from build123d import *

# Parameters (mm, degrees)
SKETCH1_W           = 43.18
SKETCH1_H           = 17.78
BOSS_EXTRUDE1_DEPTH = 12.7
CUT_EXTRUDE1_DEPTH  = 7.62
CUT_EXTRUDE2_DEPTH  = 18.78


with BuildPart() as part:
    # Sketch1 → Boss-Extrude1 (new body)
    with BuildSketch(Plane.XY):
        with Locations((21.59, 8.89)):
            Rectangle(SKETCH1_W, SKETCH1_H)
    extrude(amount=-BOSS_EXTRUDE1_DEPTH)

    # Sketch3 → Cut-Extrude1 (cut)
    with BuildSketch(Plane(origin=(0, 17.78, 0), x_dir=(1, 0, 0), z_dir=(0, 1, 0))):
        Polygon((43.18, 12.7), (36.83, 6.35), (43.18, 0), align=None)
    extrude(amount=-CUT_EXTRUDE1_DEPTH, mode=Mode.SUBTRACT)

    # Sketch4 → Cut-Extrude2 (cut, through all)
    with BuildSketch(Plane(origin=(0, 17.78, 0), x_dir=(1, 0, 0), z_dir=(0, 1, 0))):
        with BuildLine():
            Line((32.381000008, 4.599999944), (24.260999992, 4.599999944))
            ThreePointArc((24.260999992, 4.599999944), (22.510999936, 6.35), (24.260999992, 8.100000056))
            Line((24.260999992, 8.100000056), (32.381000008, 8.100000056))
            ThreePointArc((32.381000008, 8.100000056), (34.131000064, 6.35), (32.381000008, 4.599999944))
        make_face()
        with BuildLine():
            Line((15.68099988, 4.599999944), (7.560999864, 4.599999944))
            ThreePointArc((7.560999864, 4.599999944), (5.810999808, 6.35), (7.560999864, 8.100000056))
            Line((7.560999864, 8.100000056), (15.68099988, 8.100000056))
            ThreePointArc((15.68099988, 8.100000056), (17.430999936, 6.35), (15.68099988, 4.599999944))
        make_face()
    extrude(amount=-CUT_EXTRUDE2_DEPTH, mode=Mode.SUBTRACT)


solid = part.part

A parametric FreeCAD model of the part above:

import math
import FreeCAD as App
import Part
import Sketcher

V = App.Vector
Q = App.Units.Quantity

doc = App.newDocument("Part")
body = doc.addObject("PartDesign::Body", "Body")

sketch1 = doc.addObject("Sketcher::SketchObject", "Sketch")
body.addObject(sketch1)
sketch1.AttachmentSupport = (doc.XY_Plane, [""])
sketch1.MapMode = "FlatFace"
sketch1.addGeometry([
    Part.LineSegment(V(0, 17.78, 0), V(0, 0, 0)),
    Part.LineSegment(V(0, 0, 0), V(43.18, 0, 0)),
    Part.LineSegment(V(43.18, 0, 0), V(43.18, 17.78, 0)),
    Part.LineSegment(V(43.18, 17.78, 0), V(0, 17.78, 0)),
], False)
sketch1.addConstraint([
    Sketcher.Constraint("Coincident", 0, 2, 1, 1),
    Sketcher.Constraint("Coincident", 1, 2, 2, 1),
    Sketcher.Constraint("Coincident", 2, 2, 3, 1),
    Sketcher.Constraint("Coincident", 3, 2, 0, 1),
    Sketcher.Constraint("Vertical", 0),
    Sketcher.Constraint("Horizontal", 1),
    Sketcher.Constraint("Vertical", 2),
    Sketcher.Constraint("Horizontal", 3),
    Sketcher.Constraint("Coincident", 0, 2, -1, 1),
    Sketcher.Constraint("DistanceX", 1, 1, 1, 2, Q("1.7 in")),
    Sketcher.Constraint("DistanceY", 0, 2, 0, 1, Q("0.7 in")),
])
pad1 = doc.addObject("PartDesign::Pad", "Pad")
body.addObject(pad1)
pad1.Profile = sketch1
pad1.Length = Q("0.5 in")
pad1.Reversed = True

sketch2 = doc.addObject("Sketcher::SketchObject", "Sketch001")
body.addObject(sketch2)
sketch2.AttachmentSupport = (doc.XZ_Plane, [""])
sketch2.MapMode = "FlatFace"
sketch2.AttachmentOffset = App.Placement(V(0, 0, -0.7 * 25.4), App.Rotation())
sketch2.addGeometry([
    Part.LineSegment(V(43.18, -12.7, 0), V(36.83, -6.35, 0)),
    Part.LineSegment(V(36.83, -6.35, 0), V(43.18, 0, 0)),
    Part.LineSegment(V(43.18, 0, 0), V(43.18, -12.7, 0)),
], False)
sketch2.addConstraint([
    Sketcher.Constraint("Coincident", 0, 2, 1, 1),
    Sketcher.Constraint("Coincident", 1, 2, 2, 1),
    Sketcher.Constraint("Coincident", 2, 2, 0, 1),
    Sketcher.Constraint("Vertical", 2),
    Sketcher.Constraint("PointOnObject", 1, 2, -1),
    Sketcher.Constraint("Perpendicular", 0, 1),
    Sketcher.Constraint("Equal", 0, 1),
    Sketcher.Constraint("DistanceY", 2, 2, 2, 1, Q("0.5 in")),
    Sketcher.Constraint("DistanceX", -1, 1, 1, 2, Q("1.7 in")),
])
pocket1 = doc.addObject("PartDesign::Pocket", "Pocket")
body.addObject(pocket1)
pocket1.Profile = sketch2
pocket1.Length = Q("0.3 in")
pocket1.Reversed = True

sketch3 = doc.addObject("Sketcher::SketchObject", "Sketch002")
body.addObject(sketch3)
sketch3.AttachmentSupport = (doc.XZ_Plane, [""])
sketch3.MapMode = "FlatFace"
sketch3.AttachmentOffset = App.Placement(V(0, 0, -0.7 * 25.4), App.Rotation())
sketch3.addGeometry([
    Part.LineSegment(V(24.261, -4.6, 0), V(32.381, -4.6, 0)),
    Part.ArcOfCircle(Part.Circle(V(32.381, -6.35, 0), V(0, 0, 1), 1.75), math.radians(-90), math.radians(90)),
    Part.LineSegment(V(32.381, -8.1, 0), V(24.261, -8.1, 0)),
    Part.ArcOfCircle(Part.Circle(V(24.261, -6.35, 0), V(0, 0, 1), 1.75), math.radians(90), math.radians(270)),
    Part.LineSegment(V(7.561, -4.6, 0), V(15.681, -4.6, 0)),
    Part.ArcOfCircle(Part.Circle(V(15.681, -6.35, 0), V(0, 0, 1), 1.75), math.radians(-90), math.radians(90)),
    Part.LineSegment(V(15.681, -8.1, 0), V(7.561, -8.1, 0)),
    Part.ArcOfCircle(Part.Circle(V(7.561, -6.35, 0), V(0, 0, 1), 1.75), math.radians(90), math.radians(270)),
], False)
sketch3.addConstraint([
    Sketcher.Constraint("Tangent", 0, 2, 1, 2),
    Sketcher.Constraint("Tangent", 1, 1, 2, 1),
    Sketcher.Constraint("Tangent", 2, 2, 3, 2),
    Sketcher.Constraint("Tangent", 3, 1, 0, 1),
    Sketcher.Constraint("Tangent", 4, 2, 5, 2),
    Sketcher.Constraint("Tangent", 5, 1, 6, 1),
    Sketcher.Constraint("Tangent", 6, 2, 7, 2),
    Sketcher.Constraint("Tangent", 7, 1, 4, 1),
    Sketcher.Constraint("Horizontal", 0),
    Sketcher.Constraint("Horizontal", 2),
    Sketcher.Constraint("Horizontal", 4),
    Sketcher.Constraint("Horizontal", 6),
    Sketcher.Constraint("Equal", 3, 5),
    Sketcher.Constraint("Horizontal", 3, 3, 5, 3),
    Sketcher.Constraint("Equal", 2, 4),
    Sketcher.Constraint("DistanceY", 1, 3, -1, 1, Q("0.25 in")),
    Sketcher.Constraint("Radius", 1, 1.75),
    Sketcher.Constraint("DistanceX", 0, 1, 0, 2, 8.12),
    Sketcher.Constraint("DistanceX", -1, 1, 1, 3, 32.381),
    Sketcher.Constraint("DistanceX", -1, 1, 5, 3, 15.681),
])
pocket2 = doc.addObject("PartDesign::Pocket", "Pocket001")
body.addObject(pocket2)
pocket2.Profile = sketch3
pocket2.Type = "ThroughAll"
pocket2.Reversed = True

doc.recompute()
